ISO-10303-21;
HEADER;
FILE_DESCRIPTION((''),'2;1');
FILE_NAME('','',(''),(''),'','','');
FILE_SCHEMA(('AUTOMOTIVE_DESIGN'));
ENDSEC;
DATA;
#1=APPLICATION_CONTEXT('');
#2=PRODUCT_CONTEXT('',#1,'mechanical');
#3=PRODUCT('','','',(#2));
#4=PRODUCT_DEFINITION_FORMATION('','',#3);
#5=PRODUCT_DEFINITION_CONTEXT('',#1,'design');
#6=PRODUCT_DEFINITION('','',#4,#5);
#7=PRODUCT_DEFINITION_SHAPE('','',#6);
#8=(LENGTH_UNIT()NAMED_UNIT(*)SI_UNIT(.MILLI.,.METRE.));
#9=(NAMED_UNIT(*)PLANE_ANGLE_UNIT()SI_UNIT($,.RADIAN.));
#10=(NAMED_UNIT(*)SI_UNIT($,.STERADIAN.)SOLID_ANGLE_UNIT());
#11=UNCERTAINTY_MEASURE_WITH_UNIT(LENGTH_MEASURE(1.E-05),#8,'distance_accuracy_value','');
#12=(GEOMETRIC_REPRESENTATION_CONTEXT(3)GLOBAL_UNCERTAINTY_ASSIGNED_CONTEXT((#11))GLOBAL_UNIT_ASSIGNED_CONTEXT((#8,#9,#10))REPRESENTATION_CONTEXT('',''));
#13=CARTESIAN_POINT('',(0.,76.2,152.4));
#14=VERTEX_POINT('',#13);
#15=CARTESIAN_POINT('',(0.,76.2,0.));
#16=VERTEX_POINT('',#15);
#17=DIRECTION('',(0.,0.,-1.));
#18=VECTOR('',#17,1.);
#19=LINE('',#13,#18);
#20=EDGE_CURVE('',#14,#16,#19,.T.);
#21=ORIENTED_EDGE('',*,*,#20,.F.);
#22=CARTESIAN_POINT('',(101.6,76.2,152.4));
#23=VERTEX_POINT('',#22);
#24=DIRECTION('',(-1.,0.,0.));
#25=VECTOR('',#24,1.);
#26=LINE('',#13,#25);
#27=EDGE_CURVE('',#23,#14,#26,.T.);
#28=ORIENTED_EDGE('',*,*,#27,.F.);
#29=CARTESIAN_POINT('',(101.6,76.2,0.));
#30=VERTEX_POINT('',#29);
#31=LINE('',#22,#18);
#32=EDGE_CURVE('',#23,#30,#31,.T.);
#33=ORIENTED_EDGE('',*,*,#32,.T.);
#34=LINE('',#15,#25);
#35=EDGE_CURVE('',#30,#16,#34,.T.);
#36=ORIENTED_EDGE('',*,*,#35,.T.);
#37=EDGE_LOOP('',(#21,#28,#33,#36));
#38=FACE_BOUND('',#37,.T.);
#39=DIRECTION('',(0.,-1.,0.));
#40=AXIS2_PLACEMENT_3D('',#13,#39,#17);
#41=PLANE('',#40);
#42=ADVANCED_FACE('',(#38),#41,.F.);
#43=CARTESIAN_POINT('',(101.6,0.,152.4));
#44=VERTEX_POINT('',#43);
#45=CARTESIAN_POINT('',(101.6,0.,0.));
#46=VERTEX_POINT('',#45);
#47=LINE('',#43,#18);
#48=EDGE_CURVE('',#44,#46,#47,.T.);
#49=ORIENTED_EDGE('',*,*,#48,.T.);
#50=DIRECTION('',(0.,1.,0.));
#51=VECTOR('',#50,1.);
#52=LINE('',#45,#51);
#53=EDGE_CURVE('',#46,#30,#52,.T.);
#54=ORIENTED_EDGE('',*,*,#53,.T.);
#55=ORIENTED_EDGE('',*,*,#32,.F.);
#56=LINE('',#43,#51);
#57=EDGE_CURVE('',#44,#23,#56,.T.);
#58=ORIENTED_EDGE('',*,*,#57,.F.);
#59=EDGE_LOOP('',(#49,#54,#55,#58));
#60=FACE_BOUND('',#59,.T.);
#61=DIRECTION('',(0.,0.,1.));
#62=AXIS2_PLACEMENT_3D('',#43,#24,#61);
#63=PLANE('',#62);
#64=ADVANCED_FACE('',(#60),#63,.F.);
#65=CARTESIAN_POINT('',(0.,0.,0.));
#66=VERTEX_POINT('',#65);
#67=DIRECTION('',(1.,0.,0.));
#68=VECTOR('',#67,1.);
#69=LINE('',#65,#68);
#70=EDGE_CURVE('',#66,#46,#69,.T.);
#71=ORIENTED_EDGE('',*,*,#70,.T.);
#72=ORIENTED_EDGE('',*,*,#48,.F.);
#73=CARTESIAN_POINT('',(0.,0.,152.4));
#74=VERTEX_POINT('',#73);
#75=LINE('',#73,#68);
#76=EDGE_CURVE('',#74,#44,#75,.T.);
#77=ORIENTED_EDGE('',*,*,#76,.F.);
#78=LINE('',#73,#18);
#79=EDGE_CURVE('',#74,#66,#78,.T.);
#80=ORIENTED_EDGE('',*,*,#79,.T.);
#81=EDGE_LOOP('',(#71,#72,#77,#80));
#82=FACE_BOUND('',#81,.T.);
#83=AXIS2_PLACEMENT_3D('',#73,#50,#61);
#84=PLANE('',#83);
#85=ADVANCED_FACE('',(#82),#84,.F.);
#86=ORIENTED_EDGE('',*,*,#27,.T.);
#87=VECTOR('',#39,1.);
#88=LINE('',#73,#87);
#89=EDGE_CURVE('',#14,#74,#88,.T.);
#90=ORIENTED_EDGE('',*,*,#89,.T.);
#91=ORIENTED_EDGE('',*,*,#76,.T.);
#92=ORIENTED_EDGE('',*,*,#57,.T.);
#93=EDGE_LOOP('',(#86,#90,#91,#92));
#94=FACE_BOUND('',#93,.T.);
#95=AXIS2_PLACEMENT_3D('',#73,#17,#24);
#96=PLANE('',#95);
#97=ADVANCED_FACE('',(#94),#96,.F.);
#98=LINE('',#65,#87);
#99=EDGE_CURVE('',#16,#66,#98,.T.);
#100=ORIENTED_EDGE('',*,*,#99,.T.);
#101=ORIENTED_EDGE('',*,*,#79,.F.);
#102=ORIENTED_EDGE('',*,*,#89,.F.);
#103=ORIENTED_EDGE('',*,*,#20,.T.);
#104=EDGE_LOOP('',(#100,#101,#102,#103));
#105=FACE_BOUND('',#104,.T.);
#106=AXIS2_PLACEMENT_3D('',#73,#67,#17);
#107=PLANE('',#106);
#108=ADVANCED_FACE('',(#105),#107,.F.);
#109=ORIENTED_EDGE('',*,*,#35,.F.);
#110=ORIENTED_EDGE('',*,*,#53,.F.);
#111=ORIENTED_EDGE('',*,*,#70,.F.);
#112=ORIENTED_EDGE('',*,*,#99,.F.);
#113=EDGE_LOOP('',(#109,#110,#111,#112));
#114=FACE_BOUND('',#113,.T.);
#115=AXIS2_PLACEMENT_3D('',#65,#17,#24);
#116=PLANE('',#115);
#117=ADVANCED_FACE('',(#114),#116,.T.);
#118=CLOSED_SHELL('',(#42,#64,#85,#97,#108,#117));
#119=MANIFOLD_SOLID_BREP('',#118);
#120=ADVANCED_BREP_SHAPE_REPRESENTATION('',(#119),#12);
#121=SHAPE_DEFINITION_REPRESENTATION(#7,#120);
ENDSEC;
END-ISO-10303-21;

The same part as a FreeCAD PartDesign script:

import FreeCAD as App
import Part
import Sketcher

V = App.Vector
Q = App.Units.Quantity

doc = App.newDocument("Part")
body = doc.addObject("PartDesign::Body", "Body")

sketch1 = body.newObject("Sketcher::SketchObject", "Sketch")
sketch1.AttachmentSupport = (doc.getObject("XY_Plane"), [""])
sketch1.MapMode = "FlatFace"
sketch1.addGeometry([
    Part.LineSegment(V(0, 76, 0), V(0, 0, 0)),
    Part.LineSegment(V(0, 0, 0), V(102, 0, 0)),
    Part.LineSegment(V(102, 0, 0), V(102, 76, 0)),
    Part.LineSegment(V(102, 76, 0), V(0, 76, 0)),
], False)
sketch1.addConstraint([
    Sketcher.Constraint("Coincident", 0, 2, 1, 1),
    Sketcher.Constraint("Coincident", 1, 2, 2, 1),
    Sketcher.Constraint("Coincident", 2, 2, 3, 1),
    Sketcher.Constraint("Coincident", 3, 2, 0, 1),
    Sketcher.Constraint("Vertical", 0),
    Sketcher.Constraint("Horizontal", 1),
    Sketcher.Constraint("Vertical", 2),
    Sketcher.Constraint("Horizontal", 3),
    Sketcher.Constraint("Coincident", 0, 2, -1, 1),
    Sketcher.Constraint("DistanceX", 1, 1, 1, 2, Q("4 in")),
    Sketcher.Constraint("DistanceY", 0, 2, 0, 1, Q("3 in")),
])
pad1 = body.newObject("PartDesign::Pad", "Pad")
pad1.Profile = sketch1
pad1.Length = Q("6 in")

doc.recompute()
